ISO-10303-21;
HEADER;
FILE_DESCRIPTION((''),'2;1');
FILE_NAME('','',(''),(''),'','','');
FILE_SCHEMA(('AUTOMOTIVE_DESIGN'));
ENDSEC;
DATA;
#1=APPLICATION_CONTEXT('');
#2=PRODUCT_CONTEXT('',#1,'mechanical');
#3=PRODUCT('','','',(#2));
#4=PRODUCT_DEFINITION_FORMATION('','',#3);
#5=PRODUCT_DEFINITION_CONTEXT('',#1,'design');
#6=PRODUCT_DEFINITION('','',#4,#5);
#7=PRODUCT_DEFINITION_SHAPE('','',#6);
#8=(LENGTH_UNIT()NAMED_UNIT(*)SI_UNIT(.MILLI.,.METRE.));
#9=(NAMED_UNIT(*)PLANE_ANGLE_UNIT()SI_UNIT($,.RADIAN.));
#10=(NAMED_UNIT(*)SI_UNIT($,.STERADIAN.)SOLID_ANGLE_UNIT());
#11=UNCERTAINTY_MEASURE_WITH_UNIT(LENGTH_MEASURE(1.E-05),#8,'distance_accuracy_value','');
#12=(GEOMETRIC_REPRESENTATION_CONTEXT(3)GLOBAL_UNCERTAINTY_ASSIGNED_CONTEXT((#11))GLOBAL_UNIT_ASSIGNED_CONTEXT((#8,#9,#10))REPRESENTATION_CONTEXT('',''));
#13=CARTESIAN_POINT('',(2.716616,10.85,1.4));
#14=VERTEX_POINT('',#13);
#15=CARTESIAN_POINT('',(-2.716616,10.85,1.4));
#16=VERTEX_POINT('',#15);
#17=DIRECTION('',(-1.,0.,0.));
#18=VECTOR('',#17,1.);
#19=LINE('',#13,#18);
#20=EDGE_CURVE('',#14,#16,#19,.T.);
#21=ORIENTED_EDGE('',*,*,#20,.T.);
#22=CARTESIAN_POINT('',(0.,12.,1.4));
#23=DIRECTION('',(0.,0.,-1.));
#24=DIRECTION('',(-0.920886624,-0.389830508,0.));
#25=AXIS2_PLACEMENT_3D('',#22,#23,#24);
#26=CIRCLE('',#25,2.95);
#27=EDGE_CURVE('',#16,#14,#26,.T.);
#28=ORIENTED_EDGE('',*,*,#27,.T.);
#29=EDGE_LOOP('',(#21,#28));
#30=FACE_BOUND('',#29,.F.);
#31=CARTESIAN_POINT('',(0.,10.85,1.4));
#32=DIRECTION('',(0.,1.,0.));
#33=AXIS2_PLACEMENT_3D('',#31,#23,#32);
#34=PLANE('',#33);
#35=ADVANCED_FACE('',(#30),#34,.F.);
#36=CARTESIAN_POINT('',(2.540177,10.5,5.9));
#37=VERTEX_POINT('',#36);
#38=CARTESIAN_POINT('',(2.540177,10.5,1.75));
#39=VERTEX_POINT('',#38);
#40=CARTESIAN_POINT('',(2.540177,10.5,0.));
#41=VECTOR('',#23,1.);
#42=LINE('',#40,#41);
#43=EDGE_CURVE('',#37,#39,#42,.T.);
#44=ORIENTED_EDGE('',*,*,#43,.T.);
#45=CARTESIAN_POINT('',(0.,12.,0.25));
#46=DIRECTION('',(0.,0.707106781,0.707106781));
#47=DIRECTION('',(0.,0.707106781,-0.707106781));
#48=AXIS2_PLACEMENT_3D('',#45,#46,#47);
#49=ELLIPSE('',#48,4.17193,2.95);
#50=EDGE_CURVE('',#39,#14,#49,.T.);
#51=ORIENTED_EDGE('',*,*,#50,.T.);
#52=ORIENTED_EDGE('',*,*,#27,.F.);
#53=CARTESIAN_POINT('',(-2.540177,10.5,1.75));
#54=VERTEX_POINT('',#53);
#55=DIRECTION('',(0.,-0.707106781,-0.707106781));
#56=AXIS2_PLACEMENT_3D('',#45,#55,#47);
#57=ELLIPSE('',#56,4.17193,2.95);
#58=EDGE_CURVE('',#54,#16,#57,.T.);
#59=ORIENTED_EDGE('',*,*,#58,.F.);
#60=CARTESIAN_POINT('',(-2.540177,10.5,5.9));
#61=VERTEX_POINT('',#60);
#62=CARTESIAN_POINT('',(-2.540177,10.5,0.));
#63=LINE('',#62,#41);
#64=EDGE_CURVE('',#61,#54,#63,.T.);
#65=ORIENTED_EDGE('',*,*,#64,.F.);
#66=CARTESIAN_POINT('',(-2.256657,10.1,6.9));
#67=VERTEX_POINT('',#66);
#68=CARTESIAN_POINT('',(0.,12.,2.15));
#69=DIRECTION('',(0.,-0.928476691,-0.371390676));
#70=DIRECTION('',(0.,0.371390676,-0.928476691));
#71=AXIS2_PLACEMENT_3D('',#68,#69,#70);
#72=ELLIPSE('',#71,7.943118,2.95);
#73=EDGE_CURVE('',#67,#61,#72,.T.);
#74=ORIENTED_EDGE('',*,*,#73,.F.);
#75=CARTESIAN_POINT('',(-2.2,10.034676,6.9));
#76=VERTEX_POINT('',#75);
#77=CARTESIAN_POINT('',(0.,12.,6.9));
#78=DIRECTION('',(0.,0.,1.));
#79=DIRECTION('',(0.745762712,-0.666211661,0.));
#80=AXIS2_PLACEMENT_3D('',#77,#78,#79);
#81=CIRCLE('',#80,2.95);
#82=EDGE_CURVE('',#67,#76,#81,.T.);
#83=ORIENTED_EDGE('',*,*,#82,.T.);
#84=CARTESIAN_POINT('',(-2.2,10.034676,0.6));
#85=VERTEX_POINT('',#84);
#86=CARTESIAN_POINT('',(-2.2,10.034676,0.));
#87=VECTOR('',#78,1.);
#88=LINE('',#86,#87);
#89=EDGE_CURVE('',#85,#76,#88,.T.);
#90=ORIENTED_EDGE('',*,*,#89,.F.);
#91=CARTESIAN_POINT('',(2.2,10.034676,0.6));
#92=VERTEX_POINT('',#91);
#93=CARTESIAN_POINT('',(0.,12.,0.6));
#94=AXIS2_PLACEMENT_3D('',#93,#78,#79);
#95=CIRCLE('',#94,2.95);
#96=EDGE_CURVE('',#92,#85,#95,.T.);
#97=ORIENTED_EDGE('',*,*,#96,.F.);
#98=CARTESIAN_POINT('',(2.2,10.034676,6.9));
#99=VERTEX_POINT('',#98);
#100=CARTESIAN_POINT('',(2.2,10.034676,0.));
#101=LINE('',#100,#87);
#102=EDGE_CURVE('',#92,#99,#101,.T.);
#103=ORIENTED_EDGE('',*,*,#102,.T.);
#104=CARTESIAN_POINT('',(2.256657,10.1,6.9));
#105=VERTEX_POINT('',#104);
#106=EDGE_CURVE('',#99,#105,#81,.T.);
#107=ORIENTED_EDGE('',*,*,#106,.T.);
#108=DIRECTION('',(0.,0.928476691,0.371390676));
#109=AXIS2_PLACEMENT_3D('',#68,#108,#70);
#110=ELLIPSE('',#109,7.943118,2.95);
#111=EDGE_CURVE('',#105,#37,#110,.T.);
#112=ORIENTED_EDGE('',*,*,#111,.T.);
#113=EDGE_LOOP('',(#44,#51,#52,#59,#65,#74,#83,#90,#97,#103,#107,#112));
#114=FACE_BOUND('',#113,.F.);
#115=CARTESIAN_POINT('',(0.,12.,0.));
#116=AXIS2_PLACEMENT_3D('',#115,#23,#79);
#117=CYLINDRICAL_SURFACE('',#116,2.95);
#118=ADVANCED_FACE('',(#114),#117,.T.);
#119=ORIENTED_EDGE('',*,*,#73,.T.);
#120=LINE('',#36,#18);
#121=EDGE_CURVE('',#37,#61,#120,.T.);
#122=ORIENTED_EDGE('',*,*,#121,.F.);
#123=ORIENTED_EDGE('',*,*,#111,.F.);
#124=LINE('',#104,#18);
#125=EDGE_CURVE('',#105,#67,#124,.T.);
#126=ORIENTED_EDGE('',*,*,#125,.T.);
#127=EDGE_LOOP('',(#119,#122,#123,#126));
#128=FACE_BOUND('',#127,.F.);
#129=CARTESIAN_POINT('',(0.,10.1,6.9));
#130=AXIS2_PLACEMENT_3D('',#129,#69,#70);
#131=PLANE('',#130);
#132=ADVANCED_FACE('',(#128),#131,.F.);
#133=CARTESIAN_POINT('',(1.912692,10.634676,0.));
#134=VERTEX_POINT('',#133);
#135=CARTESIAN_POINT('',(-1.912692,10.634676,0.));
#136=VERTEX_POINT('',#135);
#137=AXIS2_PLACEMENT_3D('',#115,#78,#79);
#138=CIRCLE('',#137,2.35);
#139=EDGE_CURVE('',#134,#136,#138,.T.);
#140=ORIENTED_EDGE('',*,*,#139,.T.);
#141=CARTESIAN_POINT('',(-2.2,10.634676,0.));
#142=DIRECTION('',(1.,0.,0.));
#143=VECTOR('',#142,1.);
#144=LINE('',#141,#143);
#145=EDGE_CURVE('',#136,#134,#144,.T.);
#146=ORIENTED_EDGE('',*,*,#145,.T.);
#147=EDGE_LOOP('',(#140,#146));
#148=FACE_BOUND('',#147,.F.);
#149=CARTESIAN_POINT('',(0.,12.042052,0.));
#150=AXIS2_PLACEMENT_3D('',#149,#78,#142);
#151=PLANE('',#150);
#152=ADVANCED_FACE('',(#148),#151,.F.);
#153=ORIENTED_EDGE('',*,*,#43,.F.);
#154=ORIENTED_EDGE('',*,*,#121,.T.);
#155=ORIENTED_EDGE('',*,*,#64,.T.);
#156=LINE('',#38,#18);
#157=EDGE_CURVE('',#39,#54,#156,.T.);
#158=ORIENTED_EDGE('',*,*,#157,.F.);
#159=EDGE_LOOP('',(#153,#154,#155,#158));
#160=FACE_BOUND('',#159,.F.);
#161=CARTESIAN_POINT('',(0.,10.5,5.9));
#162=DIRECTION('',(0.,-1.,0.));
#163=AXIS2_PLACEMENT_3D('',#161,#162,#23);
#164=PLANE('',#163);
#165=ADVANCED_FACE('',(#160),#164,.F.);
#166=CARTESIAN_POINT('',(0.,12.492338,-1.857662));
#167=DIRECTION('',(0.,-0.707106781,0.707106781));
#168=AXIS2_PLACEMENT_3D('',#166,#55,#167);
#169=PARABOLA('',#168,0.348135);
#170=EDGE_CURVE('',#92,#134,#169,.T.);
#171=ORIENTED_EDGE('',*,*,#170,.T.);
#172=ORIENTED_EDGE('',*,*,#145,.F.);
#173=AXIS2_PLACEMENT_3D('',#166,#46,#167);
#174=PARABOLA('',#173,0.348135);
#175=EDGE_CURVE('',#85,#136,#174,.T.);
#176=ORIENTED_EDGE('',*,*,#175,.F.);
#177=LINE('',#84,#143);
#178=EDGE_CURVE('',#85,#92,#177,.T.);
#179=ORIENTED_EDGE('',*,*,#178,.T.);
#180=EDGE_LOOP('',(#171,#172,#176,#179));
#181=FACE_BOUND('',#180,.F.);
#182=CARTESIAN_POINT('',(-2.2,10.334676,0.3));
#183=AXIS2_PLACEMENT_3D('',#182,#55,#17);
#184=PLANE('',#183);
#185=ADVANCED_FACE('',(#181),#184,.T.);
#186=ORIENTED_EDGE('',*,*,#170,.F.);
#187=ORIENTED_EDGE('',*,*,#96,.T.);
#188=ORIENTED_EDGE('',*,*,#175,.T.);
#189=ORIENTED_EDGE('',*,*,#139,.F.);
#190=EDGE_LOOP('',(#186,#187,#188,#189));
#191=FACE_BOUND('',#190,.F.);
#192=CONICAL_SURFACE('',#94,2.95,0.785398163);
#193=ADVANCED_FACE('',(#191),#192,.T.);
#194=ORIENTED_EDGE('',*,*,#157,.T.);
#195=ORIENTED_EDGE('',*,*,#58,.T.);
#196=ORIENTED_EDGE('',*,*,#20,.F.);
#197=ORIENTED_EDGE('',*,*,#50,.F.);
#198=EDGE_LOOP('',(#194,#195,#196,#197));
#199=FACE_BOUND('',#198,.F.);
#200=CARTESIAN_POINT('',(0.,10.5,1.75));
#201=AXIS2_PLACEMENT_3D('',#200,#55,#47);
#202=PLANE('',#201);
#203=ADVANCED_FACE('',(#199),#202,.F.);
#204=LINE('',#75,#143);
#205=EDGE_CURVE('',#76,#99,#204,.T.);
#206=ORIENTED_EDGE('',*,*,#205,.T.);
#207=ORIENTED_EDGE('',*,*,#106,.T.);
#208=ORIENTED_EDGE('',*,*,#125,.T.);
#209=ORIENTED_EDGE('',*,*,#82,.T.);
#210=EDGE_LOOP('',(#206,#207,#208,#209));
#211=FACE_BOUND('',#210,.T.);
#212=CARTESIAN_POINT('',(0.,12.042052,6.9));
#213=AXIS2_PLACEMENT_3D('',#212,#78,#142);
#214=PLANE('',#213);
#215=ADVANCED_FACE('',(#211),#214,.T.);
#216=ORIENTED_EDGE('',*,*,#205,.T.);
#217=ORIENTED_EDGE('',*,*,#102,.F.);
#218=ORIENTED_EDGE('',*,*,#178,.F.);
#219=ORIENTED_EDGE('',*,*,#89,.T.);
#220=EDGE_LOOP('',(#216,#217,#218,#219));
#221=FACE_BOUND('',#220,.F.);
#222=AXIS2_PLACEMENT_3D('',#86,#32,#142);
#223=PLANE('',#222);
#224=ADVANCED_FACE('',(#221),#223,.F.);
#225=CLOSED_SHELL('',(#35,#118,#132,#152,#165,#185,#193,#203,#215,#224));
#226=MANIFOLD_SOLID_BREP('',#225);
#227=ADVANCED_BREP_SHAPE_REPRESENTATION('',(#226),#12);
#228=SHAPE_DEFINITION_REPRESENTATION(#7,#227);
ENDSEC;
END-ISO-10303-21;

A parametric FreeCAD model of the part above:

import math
import FreeCAD as App
import Part
import Sketcher
from FreeCAD import Vector
Q = App.Units.Quantity


def edges_at(feature, points):
    """Names of the edges that pass closest to the given points."""
    edges = feature.Shape.Edges
    near = lambda p: min(range(len(edges)), key=lambda i: edges[i].distToShape(Part.Vertex(*p))[0])
    return sorted({f"Edge{near(p) + 1}" for p in points})


def add_polygon(sketch, points):
    """Adds a closed chain of lines whose ends are joined by coincident constraints."""
    first, n = sketch.GeometryCount, len(points)
    for a, b in zip(points, points[1:] + points[:1]):
        sketch.addGeometry(Part.LineSegment(App.Vector(*a, 0), App.Vector(*b, 0)), False)
    for i in range(n):
        sketch.addConstraint(Sketcher.Constraint("Coincident", first + i, 2, first + (i + 1) % n, 1))

doc = App.newDocument("Part")
body = doc.addObject("PartDesign::Body", "Body")

# Sketch on XY plane
sketch1 = doc.addObject("Sketcher::SketchObject", "Sketch")
body.addObject(sketch1)
sketch1.AttachmentSupport = (doc.XY_Plane, [""])
sketch1.MapMode = "FlatFace"
sketch1.addGeometry([
    Part.ArcOfCircle(Part.Circle(Vector(0, 0, 0), Vector(0, 0, 1), 3), math.radians(-42), math.radians(222)),
    Part.LineSegment(Vector(-2.2, -2, 0), Vector(2.2, -2, 0)),
], False)
sketch1.addConstraint([
    Sketcher.Constraint("Coincident", 0, 1, 1, 2),
    Sketcher.Constraint("Coincident", 1, 1, 0, 2),
    Sketcher.Constraint("Horizontal", 1),
    Sketcher.Constraint("Coincident", 0, 3, -1, 1),
    Sketcher.Constraint("Radius", 0, 2.95),
    Sketcher.Constraint("DistanceX", 1, 1, 1, 2, 4.4),
])
pad1 = doc.addObject("PartDesign::Pad", "Pad")
body.addObject(pad1)
pad1.Profile = sketch1
pad1.Length = 6.9

# Sketch on YZ plane
sketch2 = doc.addObject("Sketcher::SketchObject", "Sketch001")
body.addObject(sketch2)
sketch2.AttachmentSupport = (doc.YZ_Plane, [""])
sketch2.MapMode = "FlatFace"
add_polygon(sketch2, [(-1.9, 6.9), (-1.5, 5.9), (-1.5, 1.75), (-1.15, 1.4), (5, 1.4), (5, 6.9)])  # lines 0-5
sketch2.addConstraint([
    Sketcher.Constraint("Vertical", 1),
    Sketcher.Constraint("Horizontal", 3),
    Sketcher.Constraint("Vertical", 4),
    Sketcher.Constraint("Horizontal", 5),
    Sketcher.Constraint("Angle", 2, Q("-45 deg")),
    Sketcher.Constraint("DistanceX", 5, 2, 5, 1, 6.9),
    Sketcher.Constraint("DistanceY", 4, 1, 4, 2, 5.5),
    Sketcher.Constraint("DistanceX", -1, 1, 3, 2, 5.0),
    Sketcher.Constraint("DistanceY", 0, 2, 4, 2, 1.0),
    Sketcher.Constraint("DistanceX", 3, 1, 3, 2, 6.15),
    Sketcher.Constraint("DistanceY", 1, 2, 1, 1, 4.15),
    Sketcher.Constraint("DistanceY", -1, 1, 0, 2, 5.9),
])
pocket1 = doc.addObject("PartDesign::Pocket", "Pocket")
body.addObject(pocket1)
pocket1.Profile = sketch2
pocket1.Type = "ThroughAll"
pocket1.Midplane = True
doc.recompute()

chamfer = doc.addObject("PartDesign::Chamfer", "Chamfer")
body.addObject(chamfer)
chamfer.Base = (pocket1, edges_at(pocket1, [(0, 2.95, 0), (0, -1.965, 0)]))
chamfer.Size = 0.6
body2 = doc.addObject("PartDesign::Body", "Body001")
doc.recompute()

body.Placement = App.Placement(Vector(0, 12, 0), App.Rotation(Vector(0, 0, 1), 0))
boolean = doc.addObject("PartDesign::Boolean", "Boolean")
body2.addObject(boolean)
boolean.Type = "Fuse"
boolean.addObjects([body])

doc.recompute()
